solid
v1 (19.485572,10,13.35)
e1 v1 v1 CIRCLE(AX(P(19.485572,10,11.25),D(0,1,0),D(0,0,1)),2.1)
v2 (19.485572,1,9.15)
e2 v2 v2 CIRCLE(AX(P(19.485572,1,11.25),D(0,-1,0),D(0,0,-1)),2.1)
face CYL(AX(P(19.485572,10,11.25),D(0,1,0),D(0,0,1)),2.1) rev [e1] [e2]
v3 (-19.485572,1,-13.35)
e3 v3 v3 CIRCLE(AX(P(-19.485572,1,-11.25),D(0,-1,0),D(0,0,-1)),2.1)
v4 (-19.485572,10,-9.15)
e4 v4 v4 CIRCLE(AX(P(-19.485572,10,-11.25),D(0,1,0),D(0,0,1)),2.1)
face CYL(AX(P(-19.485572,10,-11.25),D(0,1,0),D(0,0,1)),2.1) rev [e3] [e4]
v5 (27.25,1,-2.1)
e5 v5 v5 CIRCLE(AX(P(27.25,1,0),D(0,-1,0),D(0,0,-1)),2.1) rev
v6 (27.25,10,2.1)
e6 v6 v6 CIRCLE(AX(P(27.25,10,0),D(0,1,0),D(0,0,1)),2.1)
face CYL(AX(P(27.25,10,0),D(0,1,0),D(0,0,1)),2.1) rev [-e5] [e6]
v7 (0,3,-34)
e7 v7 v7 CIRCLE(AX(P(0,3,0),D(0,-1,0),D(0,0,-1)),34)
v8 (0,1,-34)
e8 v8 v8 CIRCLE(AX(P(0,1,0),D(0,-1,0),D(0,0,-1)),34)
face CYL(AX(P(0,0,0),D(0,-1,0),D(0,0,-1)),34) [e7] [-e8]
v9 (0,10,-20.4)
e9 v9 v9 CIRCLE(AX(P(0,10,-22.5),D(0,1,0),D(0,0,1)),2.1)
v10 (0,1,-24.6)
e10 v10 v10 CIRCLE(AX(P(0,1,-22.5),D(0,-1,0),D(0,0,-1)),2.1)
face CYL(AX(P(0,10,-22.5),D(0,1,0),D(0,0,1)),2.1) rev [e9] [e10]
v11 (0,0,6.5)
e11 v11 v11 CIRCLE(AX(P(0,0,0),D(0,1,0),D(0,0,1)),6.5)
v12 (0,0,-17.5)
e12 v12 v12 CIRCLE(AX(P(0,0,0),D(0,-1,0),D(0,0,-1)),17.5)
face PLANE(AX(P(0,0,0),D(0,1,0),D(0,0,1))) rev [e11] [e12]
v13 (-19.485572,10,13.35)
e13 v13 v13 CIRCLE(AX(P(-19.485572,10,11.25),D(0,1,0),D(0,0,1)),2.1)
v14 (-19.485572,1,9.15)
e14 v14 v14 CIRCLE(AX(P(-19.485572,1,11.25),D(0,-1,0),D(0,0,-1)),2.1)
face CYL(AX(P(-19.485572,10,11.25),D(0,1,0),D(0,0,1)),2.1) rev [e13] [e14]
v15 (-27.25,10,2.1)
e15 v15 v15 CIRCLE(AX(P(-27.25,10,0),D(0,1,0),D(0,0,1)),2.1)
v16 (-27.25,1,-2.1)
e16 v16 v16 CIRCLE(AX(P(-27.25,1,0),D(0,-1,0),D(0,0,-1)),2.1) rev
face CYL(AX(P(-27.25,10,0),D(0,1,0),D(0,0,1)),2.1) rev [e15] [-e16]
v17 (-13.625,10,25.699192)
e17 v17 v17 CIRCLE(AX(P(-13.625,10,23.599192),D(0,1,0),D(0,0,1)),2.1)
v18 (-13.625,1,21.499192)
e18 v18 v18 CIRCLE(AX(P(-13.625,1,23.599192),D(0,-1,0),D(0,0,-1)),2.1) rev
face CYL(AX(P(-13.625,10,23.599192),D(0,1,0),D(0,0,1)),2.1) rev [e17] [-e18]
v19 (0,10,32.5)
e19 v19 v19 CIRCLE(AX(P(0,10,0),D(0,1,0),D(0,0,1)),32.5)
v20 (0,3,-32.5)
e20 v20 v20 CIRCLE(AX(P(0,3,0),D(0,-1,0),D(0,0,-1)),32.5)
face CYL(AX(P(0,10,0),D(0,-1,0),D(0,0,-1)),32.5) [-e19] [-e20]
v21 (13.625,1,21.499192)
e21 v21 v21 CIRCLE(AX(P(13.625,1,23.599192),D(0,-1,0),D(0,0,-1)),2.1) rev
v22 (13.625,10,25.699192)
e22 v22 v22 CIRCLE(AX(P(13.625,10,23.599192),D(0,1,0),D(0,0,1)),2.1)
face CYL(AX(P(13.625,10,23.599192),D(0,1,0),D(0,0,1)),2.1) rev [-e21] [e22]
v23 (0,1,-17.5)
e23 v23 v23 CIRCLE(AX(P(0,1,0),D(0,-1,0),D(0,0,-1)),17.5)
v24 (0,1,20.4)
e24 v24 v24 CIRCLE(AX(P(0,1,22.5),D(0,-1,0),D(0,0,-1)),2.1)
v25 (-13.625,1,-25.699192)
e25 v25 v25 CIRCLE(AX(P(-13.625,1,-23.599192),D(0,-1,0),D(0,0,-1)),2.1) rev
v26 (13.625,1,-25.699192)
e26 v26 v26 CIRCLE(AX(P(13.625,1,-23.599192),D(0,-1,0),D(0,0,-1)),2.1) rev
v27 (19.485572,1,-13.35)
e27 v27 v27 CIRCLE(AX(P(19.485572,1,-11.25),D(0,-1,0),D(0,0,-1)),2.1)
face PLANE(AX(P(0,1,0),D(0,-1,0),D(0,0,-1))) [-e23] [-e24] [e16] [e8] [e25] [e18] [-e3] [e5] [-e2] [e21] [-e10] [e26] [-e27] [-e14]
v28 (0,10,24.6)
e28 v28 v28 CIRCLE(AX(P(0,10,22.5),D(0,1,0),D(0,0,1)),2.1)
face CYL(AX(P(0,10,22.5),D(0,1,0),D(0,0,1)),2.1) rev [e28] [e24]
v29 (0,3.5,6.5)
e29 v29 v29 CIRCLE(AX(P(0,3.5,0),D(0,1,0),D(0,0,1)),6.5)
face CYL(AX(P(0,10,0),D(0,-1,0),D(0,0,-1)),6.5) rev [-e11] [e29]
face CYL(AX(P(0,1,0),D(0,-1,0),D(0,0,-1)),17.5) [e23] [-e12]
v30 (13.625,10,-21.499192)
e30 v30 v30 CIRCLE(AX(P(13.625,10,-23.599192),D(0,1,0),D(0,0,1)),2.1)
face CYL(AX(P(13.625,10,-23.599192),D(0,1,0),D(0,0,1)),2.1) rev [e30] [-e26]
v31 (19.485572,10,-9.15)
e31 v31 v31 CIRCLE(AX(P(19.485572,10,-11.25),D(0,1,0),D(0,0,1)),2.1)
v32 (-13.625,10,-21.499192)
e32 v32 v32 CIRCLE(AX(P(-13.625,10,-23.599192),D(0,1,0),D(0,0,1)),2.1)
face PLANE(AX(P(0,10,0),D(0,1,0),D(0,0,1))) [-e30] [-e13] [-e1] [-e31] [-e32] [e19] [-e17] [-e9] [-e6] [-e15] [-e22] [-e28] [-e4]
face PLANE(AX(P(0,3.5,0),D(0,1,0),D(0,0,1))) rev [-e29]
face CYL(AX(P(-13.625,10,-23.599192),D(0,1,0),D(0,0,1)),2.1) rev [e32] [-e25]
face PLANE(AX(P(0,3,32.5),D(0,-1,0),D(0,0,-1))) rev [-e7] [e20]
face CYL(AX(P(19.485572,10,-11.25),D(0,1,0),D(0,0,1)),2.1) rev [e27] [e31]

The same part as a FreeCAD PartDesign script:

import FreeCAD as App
import Part
import Sketcher

V = App.Vector


def add_polygon(sketch, points):
    """Adds a closed chain of lines whose ends are joined by coincident constraints."""
    first, n = sketch.GeometryCount, len(points)
    for a, b in zip(points, points[1:] + points[:1]):
        sketch.addGeometry(Part.LineSegment(App.Vector(*a, 0), App.Vector(*b, 0)), False)
    for i in range(n):
        sketch.addConstraint(Sketcher.Constraint("Coincident", first + i, 2, first + (i + 1) % n, 1))

doc = App.newDocument("Part")
body = doc.addObject("PartDesign::Body", "Body")

# Sketch on XZ plane
sketch1 = body.newObject("Sketcher::SketchObject", "Sketch")
sketch1.AttachmentSupport = (doc.getObject("XZ_Plane"), [""])
sketch1.MapMode = "FlatFace"
sketch1.addGeometry(Part.Circle(V(0, 0, 0), V(0, 0, 1), 32.5), False)
sketch1.addGeometry(Part.Circle(V(-13.6, -23.6, 0), V(0, 0, 1), 1.5), False)
sketch1.addGeometry(Part.Circle(V(-27.2, 0, 0), V(0, 0, 1), 1.5), False)
sketch1.addGeometry(Part.Circle(V(-13.6, 23.6, 0), V(0, 0, 1), 1.5), False)
sketch1.addGeometry(Part.Circle(V(13.6, -23.6, 0), V(0, 0, 1), 1.5), False)
sketch1.addGeometry(Part.Circle(V(0, 0, 0), V(0, 0, 1), 6.5), False)
sketch1.addGeometry(Part.Circle(V(27.2, 0, 0), V(0, 0, 1), 1.5), False)
sketch1.addGeometry(Part.Circle(V(13.6, 23.6, 0), V(0, 0, 1), 1.5), False)
sketch1.addConstraint(Sketcher.Constraint("Coincident", 0, 3, -1, 1))
sketch1.addConstraint(Sketcher.Constraint("Coincident", 5, 3, -1, 1))
sketch1.addConstraint(Sketcher.Constraint("Equal", 1, 2))
sketch1.addConstraint(Sketcher.Constraint("Equal", 2, 3))
sketch1.addConstraint(Sketcher.Constraint("Equal", 3, 4))
sketch1.addConstraint(Sketcher.Constraint("Equal", 4, 6))
sketch1.addConstraint(Sketcher.Constraint("Equal", 6, 7))
sketch1.addConstraint(Sketcher.Constraint("Symmetric", 3, 3, 4, 3, -1, 1))
sketch1.addConstraint(Sketcher.Constraint("Symmetric", 2, 3, 6, 3, -1, 1))
sketch1.addConstraint(Sketcher.Constraint("Symmetric", 1, 3, 7, 3, -1, 1))
sketch1.addConstraint(Sketcher.Constraint("Symmetric", 1, 3, 4, 3, -2))
sketch1.addConstraint(Sketcher.Constraint("PointOnObject", 2, 3, -1))
sketch1.addConstraint(Sketcher.Constraint("Diameter", 0, 65.0))
sketch1.addConstraint(Sketcher.Constraint("Diameter", 1, 3.0))
sketch1.addConstraint(Sketcher.Constraint("Diameter", 5, 13.0))
sketch1.addConstraint(Sketcher.Constraint("DistanceX", 2, 3, -1, 1, 27.25))
sketch1.addConstraint(Sketcher.Constraint("DistanceX", 1, 3, 4, 3, 27.25))
sketch1.addConstraint(Sketcher.Constraint("DistanceY", 1, 3, -1, 1, 23.599192))
pad1 = body.newObject("PartDesign::Pad", "Pad")
pad1.Profile = sketch1
pad1.Length = 10
pad1.Reversed = True

# Sketch on XZ plane
sketch2 = body.newObject("Sketcher::SketchObject", "Sketch001")
sketch2.AttachmentSupport = (doc.getObject("XZ_Plane"), [""])
sketch2.MapMode = "FlatFace"
sketch2.AttachmentOffset = App.Placement(V(0, 0, -10), App.Rotation())
sketch2.addGeometry(Part.Circle(V(-13.6, -23.6, 0), V(0, 0, 1), 2.1), False)
sketch2.addGeometry(Part.Circle(V(13.6, -23.6, 0), V(0, 0, 1), 2.1), False)
sketch2.addGeometry(Part.Circle(V(27.2, 0, 0), V(0, 0, 1), 2.1), False)
sketch2.addGeometry(Part.Circle(V(13.6, 23.6, 0), V(0, 0, 1), 2.1), False)
sketch2.addGeometry(Part.Circle(V(-13.6, 23.6, 0), V(0, 0, 1), 2.1), False)
sketch2.addGeometry(Part.Circle(V(-27.2, 0, 0), V(0, 0, 1), 2.1), False)
sketch2.addConstraint(Sketcher.Constraint("Equal", 0, 1))
sketch2.addConstraint(Sketcher.Constraint("Equal", 1, 2))
sketch2.addConstraint(Sketcher.Constraint("Equal", 2, 3))
sketch2.addConstraint(Sketcher.Constraint("Equal", 3, 4))
sketch2.addConstraint(Sketcher.Constraint("Equal", 4, 5))
sketch2.addConstraint(Sketcher.Constraint("Symmetric", 0, 3, 3, 3, -1, 1))
sketch2.addConstraint(Sketcher.Constraint("Symmetric", 1, 3, 4, 3, -1, 1))
sketch2.addConstraint(Sketcher.Constraint("Symmetric", 2, 3, 5, 3, -1, 1))
sketch2.addConstraint(Sketcher.Constraint("Symmetric", 0, 3, 1, 3, -2))
sketch2.addConstraint(Sketcher.Constraint("PointOnObject", 2, 3, -1))
sketch2.addConstraint(Sketcher.Constraint("Diameter", 0, 4.2))
sketch2.addConstraint(Sketcher.Constraint("DistanceX", 5, 3, 2, 3, 54.5))
sketch2.addConstraint(Sketcher.Constraint("DistanceX", 0, 3, 1, 3, 27.25))
sketch2.addConstraint(Sketcher.Constraint("DistanceY", 0, 3, -1, 1, 23.599192))
doc.recompute()
hole = body.newObject("PartDesign::Hole", "Hole")
hole.Profile = sketch2
hole.ThreadType = "None"
hole.Diameter = 4.2
hole.DepthType = "ThroughAll"
hole.Reversed = True

# Sketch on XZ plane
sketch3 = body.newObject("Sketcher::SketchObject", "Sketch002")
sketch3.AttachmentSupport = (doc.getObject("XZ_Plane"), [""])
sketch3.MapMode = "FlatFace"
sketch3.AttachmentOffset = App.Placement(V(0, 0, -3.5), App.Rotation())
sketch3.addGeometry(Part.Circle(V(0, 0, 0), V(0, 0, 1), 6), False)
sketch3.addConstraint(Sketcher.Constraint("Coincident", 0, 3, -1, 1))
sketch3.addConstraint(Sketcher.Constraint("Diameter", 0, 13.0))
pad2 = body.newObject("PartDesign::Pad", "Pad001")
pad2.Profile = sketch3
pad2.Length = 6.5
pad2.Reversed = True

# Sketch on XZ plane
sketch4 = body.newObject("Sketcher::SketchObject", "Sketch003")
sketch4.AttachmentSupport = (doc.getObject("XZ_Plane"), [""])
sketch4.MapMode = "FlatFace"
sketch4.addGeometry(Part.Circle(V(0, 0, 0), V(0, 0, 1), 32), False)
sketch4.addGeometry(Part.Circle(V(0, 0, 0), V(0, 0, 1), 18), False)
sketch4.addConstraint(Sketcher.Constraint("Coincident", 0, 3, -1, 1))
sketch4.addConstraint(Sketcher.Constraint("Coincident", 1, 3, -1, 1))
sketch4.addConstraint(Sketcher.Constraint("Diameter", 0, 65.0))
sketch4.addConstraint(Sketcher.Constraint("Diameter", 1, 35.0))
pocket1 = body.newObject("PartDesign::Pocket", "Pocket")
pocket1.Profile = sketch4
pocket1.Length = 1

# Sketch on YZ plane
sketch5 = body.newObject("Sketcher::SketchObject", "Sketch004")
sketch5.AttachmentSupport = (doc.getObject("YZ_Plane"), [""])
sketch5.MapMode = "FlatFace"
add_polygon(sketch5, [(3, 34), (1, 34), (1, 32.5), (3, 32.5)])  # lines 0-3
sketch5.addConstraint(Sketcher.Constraint("Horizontal", 0))
sketch5.addConstraint(Sketcher.Constraint("Vertical", 1))
sketch5.addConstraint(Sketcher.Constraint("Horizontal", 2))
sketch5.addConstraint(Sketcher.Constraint("Vertical", 3))
sketch5.addConstraint(Sketcher.Constraint("DistanceX", 0, 2, 0, 1, 2.0))
sketch5.addConstraint(Sketcher.Constraint("DistanceY", 1, 2, 1, 1, 1.5))
sketch5.addConstraint(Sketcher.Constraint("DistanceX", -1, 1, 0, 2, 1.0))
sketch5.addConstraint(Sketcher.Constraint("DistanceY", -1, 1, 0, 2, 34.0))
revolution = body.newObject("PartDesign::Revolution", "Revolution")
revolution.Profile = sketch5
revolution.ReferenceAxis = (sketch5, ["H_Axis"])
revolution.Angle = 360

# Sketch on XZ plane
sketch6 = body.newObject("Sketcher::SketchObject", "Sketch005")
sketch6.AttachmentSupport = (doc.getObject("XZ_Plane"), [""])
sketch6.MapMode = "FlatFace"
sketch6.AttachmentOffset = App.Placement(V(0, 0, -10), App.Rotation())
sketch6.addGeometry(Part.Circle(V(0, -22.5, 0), V(0, 0, 1), 2.1), False)
sketch6.addGeometry(Part.Circle(V(19.5, -11.2, 0), V(0, 0, 1), 2.1), False)
sketch6.addGeometry(Part.Circle(V(19.5, 11.2, 0), V(0, 0, 1), 2.1), False)
sketch6.addGeometry(Part.Circle(V(0, 22.5, 0), V(0, 0, 1), 2.1), False)
sketch6.addGeometry(Part.Circle(V(-19.5, 11.2, 0), V(0, 0, 1), 2.1), False)
sketch6.addGeometry(Part.Circle(V(-19.5, -11.2, 0), V(0, 0, 1), 2.1), False)
sketch6.addConstraint(Sketcher.Constraint("Equal", 0, 1))
sketch6.addConstraint(Sketcher.Constraint("Equal", 1, 2))
sketch6.addConstraint(Sketcher.Constraint("Equal", 2, 3))
sketch6.addConstraint(Sketcher.Constraint("Equal", 3, 4))
sketch6.addConstraint(Sketcher.Constraint("Equal", 4, 5))
sketch6.addConstraint(Sketcher.Constraint("Symmetric", 0, 3, 3, 3, -1, 1))
sketch6.addConstraint(Sketcher.Constraint("Symmetric", 1, 3, 4, 3, -1, 1))
sketch6.addConstraint(Sketcher.Constraint("Symmetric", 2, 3, 5, 3, -1, 1))
sketch6.addConstraint(Sketcher.Constraint("Symmetric", 2, 3, 4, 3, -2))
sketch6.addConstraint(Sketcher.Constraint("PointOnObject", 0, 3, -2))
sketch6.addConstraint(Sketcher.Constraint("Diameter", 0, 4.2))
sketch6.addConstraint(Sketcher.Constraint("DistanceY", 0, 3, 3, 3, 45.0))
sketch6.addConstraint(Sketcher.Constraint("DistanceY", 1, 3, 2, 3, 22.5))
sketch6.addConstraint(Sketcher.Constraint("DistanceX", -1, 1, 1, 3, 19.485572))
doc.recompute()
hole2 = body.newObject("PartDesign::Hole", "Hole001")
hole2.Profile = sketch6
hole2.ThreadType = "None"
hole2.Diameter = 4.2
hole2.DepthType = "ThroughAll"
hole2.Reversed = True

doc.recompute()
